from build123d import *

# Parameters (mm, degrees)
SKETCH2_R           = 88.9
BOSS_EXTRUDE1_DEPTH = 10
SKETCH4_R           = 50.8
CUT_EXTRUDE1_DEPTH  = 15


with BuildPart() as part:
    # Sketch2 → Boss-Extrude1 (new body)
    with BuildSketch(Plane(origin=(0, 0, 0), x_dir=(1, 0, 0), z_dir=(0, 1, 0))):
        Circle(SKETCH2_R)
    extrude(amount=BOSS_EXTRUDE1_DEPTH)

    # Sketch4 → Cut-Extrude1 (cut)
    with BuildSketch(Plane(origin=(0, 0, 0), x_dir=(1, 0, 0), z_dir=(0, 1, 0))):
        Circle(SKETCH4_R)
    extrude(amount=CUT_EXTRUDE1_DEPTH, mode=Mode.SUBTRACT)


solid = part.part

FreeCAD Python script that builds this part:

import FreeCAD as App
import Part
import Sketcher
Q = App.Units.Quantity

doc = App.newDocument("Part")
body = doc.addObject("PartDesign::Body", "Body")

sketch1 = body.newObject("Sketcher::SketchObject", "Sketch")
sketch1.AttachmentSupport = (doc.getObject("XZ_Plane"), [""])
sketch1.MapMode = "FlatFace"
sketch1.addGeometry(Part.Circle(App.Vector(0, 0, 0), App.Vector(0, 0, 1), 89), False)
sketch1.addConstraint(Sketcher.Constraint("Coincident", 0, 3, -1, 1))
sketch1.addConstraint(Sketcher.Constraint("Diameter", 0, Q("177.8 mm")))
pad1 = body.newObject("PartDesign::Pad", "Pad")
pad1.Profile = sketch1
pad1.Length = 10
pad1.Reversed = True

sketch2 = body.newObject("Sketcher::SketchObject", "Sketch001")
sketch2.AttachmentSupport = (doc.getObject("XZ_Plane"), [""])
sketch2.MapMode = "FlatFace"
sketch2.addGeometry(Part.Circle(App.Vector(0, 0, 0), App.Vector(0, 0, 1), 51), False)
sketch2.addConstraint(Sketcher.Constraint("Coincident", 0, 3, -1, 1))
sketch2.addConstraint(Sketcher.Constraint("Diameter", 0, Q("101.6 mm")))
pocket1 = body.newObject("PartDesign::Pocket", "Pocket")
pocket1.Profile = sketch2
pocket1.Length = 15

doc.recompute()
